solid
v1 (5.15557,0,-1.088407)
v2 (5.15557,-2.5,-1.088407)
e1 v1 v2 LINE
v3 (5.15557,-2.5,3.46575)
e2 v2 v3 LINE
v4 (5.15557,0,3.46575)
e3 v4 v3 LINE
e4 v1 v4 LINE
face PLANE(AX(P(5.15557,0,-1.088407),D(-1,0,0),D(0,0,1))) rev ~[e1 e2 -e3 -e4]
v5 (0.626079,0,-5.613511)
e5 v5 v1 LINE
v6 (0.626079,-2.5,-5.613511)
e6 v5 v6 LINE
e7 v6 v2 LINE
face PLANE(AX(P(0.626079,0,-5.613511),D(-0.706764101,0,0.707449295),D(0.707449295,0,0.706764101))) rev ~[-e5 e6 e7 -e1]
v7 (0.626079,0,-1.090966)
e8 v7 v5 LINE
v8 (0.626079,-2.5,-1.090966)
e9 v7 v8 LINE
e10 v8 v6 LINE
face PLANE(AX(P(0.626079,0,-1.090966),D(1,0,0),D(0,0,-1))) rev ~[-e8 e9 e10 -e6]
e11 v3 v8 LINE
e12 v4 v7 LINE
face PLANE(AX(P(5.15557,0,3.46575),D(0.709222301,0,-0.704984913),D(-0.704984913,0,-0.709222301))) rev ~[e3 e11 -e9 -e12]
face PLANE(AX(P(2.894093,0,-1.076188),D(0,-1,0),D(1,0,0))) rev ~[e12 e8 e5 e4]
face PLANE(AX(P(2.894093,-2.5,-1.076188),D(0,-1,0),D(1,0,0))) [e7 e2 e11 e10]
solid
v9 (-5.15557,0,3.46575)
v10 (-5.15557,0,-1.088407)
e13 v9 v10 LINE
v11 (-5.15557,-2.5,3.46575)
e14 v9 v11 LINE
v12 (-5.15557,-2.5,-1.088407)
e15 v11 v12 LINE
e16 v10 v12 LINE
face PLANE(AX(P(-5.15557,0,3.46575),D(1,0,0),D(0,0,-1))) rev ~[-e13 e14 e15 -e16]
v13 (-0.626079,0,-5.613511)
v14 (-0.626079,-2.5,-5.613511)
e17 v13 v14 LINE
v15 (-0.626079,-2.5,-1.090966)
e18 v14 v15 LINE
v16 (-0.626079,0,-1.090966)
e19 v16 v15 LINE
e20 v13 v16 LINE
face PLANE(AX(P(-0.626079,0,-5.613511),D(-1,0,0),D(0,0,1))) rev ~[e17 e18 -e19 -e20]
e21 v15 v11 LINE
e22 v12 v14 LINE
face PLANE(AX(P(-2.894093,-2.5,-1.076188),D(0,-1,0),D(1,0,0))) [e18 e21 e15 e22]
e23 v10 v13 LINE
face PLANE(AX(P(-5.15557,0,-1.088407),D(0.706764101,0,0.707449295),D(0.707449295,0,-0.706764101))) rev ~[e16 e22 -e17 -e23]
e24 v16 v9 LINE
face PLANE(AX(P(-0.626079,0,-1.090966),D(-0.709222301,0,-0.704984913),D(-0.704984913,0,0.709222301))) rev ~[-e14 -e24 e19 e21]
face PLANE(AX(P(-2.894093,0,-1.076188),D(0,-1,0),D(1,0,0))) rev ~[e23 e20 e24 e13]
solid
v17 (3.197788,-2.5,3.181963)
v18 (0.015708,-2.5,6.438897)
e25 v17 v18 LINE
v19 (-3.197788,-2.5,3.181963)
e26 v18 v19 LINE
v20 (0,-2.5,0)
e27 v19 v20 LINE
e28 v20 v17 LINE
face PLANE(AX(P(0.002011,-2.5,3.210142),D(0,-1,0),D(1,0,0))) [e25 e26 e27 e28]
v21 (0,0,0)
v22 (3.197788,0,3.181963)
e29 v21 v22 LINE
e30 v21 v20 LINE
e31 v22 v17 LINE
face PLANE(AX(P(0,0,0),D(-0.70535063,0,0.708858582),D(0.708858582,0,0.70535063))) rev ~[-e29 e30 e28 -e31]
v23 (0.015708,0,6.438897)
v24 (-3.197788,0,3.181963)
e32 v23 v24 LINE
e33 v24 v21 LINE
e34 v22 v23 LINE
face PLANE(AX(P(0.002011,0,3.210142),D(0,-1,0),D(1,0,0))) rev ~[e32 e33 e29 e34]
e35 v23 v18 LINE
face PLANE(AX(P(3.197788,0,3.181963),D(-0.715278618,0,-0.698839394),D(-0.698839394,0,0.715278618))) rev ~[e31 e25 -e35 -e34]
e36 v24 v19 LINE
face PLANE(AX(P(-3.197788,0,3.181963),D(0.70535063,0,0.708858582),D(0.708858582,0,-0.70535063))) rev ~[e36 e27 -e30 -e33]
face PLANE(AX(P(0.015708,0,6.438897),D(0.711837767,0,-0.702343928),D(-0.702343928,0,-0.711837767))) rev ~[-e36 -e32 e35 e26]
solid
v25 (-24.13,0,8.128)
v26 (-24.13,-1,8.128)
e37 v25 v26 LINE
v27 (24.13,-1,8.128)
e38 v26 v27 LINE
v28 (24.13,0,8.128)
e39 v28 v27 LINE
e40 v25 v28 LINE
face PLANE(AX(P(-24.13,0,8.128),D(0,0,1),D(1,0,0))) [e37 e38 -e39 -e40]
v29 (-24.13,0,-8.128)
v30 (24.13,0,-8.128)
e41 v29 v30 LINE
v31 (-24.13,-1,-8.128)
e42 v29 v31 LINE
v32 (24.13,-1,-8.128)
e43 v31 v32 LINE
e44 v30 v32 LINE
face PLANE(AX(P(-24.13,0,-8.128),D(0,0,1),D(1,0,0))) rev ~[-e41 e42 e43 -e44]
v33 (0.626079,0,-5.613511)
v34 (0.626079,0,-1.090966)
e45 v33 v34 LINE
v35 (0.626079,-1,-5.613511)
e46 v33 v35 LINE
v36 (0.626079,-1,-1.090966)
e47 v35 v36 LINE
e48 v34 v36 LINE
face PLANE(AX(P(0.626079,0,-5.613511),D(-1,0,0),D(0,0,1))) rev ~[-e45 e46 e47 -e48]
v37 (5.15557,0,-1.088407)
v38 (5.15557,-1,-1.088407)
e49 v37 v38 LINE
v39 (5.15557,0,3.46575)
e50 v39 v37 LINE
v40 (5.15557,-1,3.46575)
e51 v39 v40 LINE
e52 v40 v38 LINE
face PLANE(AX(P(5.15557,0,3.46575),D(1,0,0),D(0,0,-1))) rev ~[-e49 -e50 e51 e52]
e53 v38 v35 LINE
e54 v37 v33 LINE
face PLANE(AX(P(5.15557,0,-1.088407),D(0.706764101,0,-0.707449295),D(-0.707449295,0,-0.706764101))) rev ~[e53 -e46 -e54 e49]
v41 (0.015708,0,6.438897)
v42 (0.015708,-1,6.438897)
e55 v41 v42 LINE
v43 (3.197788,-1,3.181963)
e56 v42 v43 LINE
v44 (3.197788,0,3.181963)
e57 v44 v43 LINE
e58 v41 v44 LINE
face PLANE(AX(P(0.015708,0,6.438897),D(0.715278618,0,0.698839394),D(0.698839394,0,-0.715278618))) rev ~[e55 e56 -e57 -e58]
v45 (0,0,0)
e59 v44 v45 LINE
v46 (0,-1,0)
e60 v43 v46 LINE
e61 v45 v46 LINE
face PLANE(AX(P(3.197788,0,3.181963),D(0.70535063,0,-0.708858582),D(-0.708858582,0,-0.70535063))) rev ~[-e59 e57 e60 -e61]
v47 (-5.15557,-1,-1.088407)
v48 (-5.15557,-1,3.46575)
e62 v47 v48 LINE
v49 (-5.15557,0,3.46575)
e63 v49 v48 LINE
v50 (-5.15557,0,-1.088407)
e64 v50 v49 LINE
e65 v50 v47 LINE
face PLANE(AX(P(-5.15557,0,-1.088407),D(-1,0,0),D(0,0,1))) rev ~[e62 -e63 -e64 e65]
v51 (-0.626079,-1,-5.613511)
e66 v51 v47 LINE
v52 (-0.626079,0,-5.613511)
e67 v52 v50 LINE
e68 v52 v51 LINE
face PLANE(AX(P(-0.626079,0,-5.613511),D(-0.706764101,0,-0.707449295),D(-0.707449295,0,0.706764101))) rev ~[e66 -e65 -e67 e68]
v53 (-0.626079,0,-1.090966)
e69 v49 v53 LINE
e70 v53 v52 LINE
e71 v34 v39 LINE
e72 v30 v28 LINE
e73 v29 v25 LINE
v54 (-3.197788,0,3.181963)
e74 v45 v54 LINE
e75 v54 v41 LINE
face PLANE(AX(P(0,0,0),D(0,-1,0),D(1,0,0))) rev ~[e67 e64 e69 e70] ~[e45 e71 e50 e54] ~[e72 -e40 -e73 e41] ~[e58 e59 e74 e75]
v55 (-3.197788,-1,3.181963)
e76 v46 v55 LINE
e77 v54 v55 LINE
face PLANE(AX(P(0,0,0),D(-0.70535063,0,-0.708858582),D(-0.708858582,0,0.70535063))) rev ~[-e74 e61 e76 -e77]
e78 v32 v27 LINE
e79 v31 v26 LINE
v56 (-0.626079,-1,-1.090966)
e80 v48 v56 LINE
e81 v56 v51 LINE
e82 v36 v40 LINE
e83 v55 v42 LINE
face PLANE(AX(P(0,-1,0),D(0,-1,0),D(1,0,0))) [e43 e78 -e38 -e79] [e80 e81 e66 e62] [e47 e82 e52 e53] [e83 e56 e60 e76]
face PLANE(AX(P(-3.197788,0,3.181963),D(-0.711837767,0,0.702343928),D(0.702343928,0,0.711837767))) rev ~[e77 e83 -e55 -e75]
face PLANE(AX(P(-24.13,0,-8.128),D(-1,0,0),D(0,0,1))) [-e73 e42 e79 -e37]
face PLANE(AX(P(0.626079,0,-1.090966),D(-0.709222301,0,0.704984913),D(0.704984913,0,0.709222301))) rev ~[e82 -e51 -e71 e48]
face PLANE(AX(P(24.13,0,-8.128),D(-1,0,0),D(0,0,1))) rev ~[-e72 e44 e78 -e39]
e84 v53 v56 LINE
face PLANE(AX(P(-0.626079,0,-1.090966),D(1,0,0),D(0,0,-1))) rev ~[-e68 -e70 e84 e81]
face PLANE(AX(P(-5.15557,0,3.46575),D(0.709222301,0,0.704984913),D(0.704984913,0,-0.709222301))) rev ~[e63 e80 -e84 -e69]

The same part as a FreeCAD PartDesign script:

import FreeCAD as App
import Part
import Sketcher

V = App.Vector
Q = App.Units.Quantity

doc = App.newDocument("Part")
body = doc.addObject("PartDesign::Body", "Body")
body.AllowCompound = True

# Sketch on XZ plane
sketch1 = body.newObject("Sketcher::SketchObject", "Sketch")
sketch1.AttachmentSupport = (doc.getObject("XZ_Plane"), [""])
sketch1.MapMode = "FlatFace"
sketch1.addGeometry([
    Part.LineSegment(V(-0.6, -1.1, 0), V(-5.2, 3.5, 0)),  # 0
    Part.LineSegment(V(-5.2, 3.5, 0), V(-5.2, -1.1, 0)),  # 1
    Part.LineSegment(V(-5.2, -1.1, 0), V(-0.6, -5.6, 0)),  # 2
    Part.LineSegment(V(-0.6, -5.6, 0), V(-0.6, -1.1, 0)),  # 3
    Part.LineSegment(V(3.2, 3.2, 0), V(0, 6.4, 0)),  # 4
    Part.LineSegment(V(0, 6.4, 0), V(-3.2, 3.2, 0)),  # 5
    Part.LineSegment(V(-3.2, 3.2, 0), V(0, 0, 0)),  # 6
    Part.LineSegment(V(0, 0, 0), V(3.2, 3.2, 0)),  # 7
    Part.LineSegment(V(5.2, 3.5, 0), V(0.6, -1.1, 0)),  # 8
    Part.LineSegment(V(0.6, -1.1, 0), V(0.6, -5.6, 0)),  # 9
    Part.LineSegment(V(0.6, -5.6, 0), V(5.2, -1.1, 0)),  # 10
    Part.LineSegment(V(5.2, -1.1, 0), V(5.2, 3.5, 0)),  # 11
], False)
sketch1.addConstraint([
    Sketcher.Constraint("Coincident", 0, 2, 1, 1),
    Sketcher.Constraint("Coincident", 1, 2, 2, 1),
    Sketcher.Constraint("Coincident", 2, 2, 3, 1),
    Sketcher.Constraint("Coincident", 3, 2, 0, 1),
    Sketcher.Constraint("Coincident", 4, 2, 5, 1),
    Sketcher.Constraint("Coincident", 5, 2, 6, 1),
    Sketcher.Constraint("Coincident", 6, 2, 7, 1),
    Sketcher.Constraint("Coincident", 7, 2, 4, 1),
    Sketcher.Constraint("Coincident", 8, 2, 9, 1),
    Sketcher.Constraint("Coincident", 9, 2, 10, 1),
    Sketcher.Constraint("Coincident", 10, 2, 11, 1),
    Sketcher.Constraint("Coincident", 11, 2, 8, 1),
    Sketcher.Constraint("Vertical", 1),
    Sketcher.Constraint("Vertical", 3),
    Sketcher.Constraint("Vertical", 9),
    Sketcher.Constraint("Vertical", 11),
    Sketcher.Constraint("Coincident", 6, 2, -1, 1),
    Sketcher.Constraint("Symmetric", 5, 2, 7, 2, -2),
    Sketcher.Constraint("Symmetric", 3, 2, 8, 2, -2),
    Sketcher.Constraint("Symmetric", 1, 2, 10, 2, -2),
    Sketcher.Constraint("Horizontal", 2, 2, 9, 2),
    Sketcher.Constraint("Horizontal", 0, 2, 11, 2),
    Sketcher.Constraint("Distance", 4, Q("4.553378 mm")),
    Sketcher.Constraint("Distance", 5, Q("4.575388 mm")),
    Sketcher.Constraint("Distance", 6, Q("4.511179 mm")),
    Sketcher.Constraint("DistanceY", 1, 2, 1, 1, Q("4.554157 mm")),
    Sketcher.Constraint("DistanceY", 3, 1, 3, 2, Q("4.522545 mm")),
    Sketcher.Constraint("DistanceX", 0, 2, -1, 1, Q("5.15557 mm")),
    Sketcher.Constraint("DistanceY", -1, 1, 0, 2, Q("3.46575 mm")),
    Sketcher.Constraint("DistanceX", 2, 2, -1, 1, Q("0.626079 mm")),
    Sketcher.Constraint("DistanceY", 2, 2, -1, 1, Q("5.613511 mm")),
    Sketcher.Constraint("DistanceX", 5, 2, -1, 1, Q("3.197788 mm")),
])
pad1 = body.newObject("PartDesign::Pad", "Pad")
pad1.Profile = sketch1
pad1.Length = 2.5
body2 = doc.addObject("PartDesign::Body", "Body001")

# Sketch on XZ plane
sketch2 = body2.newObject("Sketcher::SketchObject", "Sketch001")
sketch2.AttachmentSupport = (doc.getObject("XZ_Plane001"), [""])
sketch2.MapMode = "FlatFace"
sketch2.addGeometry([
    Part.LineSegment(V(-24.1, 8.1, 0), V(-24.1, -8.1, 0)),  # 0
    Part.LineSegment(V(-24.1, -8.1, 0), V(24.1, -8.1, 0)),  # 1
    Part.LineSegment(V(24.1, -8.1, 0), V(24.1, 8.1, 0)),  # 2
    Part.LineSegment(V(24.1, 8.1, 0), V(-24.1, 8.1, 0)),  # 3
    Part.LineSegment(V(-0.6, -5.6, 0), V(-5.2, -1.1, 0)),  # 4
    Part.LineSegment(V(-5.2, -1.1, 0), V(-5.2, 3.5, 0)),  # 5
    Part.LineSegment(V(-5.2, 3.5, 0), V(-0.6, -1.1, 0)),  # 6
    Part.LineSegment(V(-0.6, -1.1, 0), V(-0.6, -5.6, 0)),  # 7
    Part.LineSegment(V(5.2, -1.1, 0), V(0.6, -5.6, 0)),  # 8
    Part.LineSegment(V(0.6, -5.6, 0), V(0.6, -1.1, 0)),  # 9
    Part.LineSegment(V(0.6, -1.1, 0), V(5.2, 3.5, 0)),  # 10
    Part.LineSegment(V(5.2, 3.5, 0), V(5.2, -1.1, 0)),  # 11
    Part.LineSegment(V(0, 0, 0), V(-3.2, 3.2, 0)),  # 12
    Part.LineSegment(V(-3.2, 3.2, 0), V(0, 6.4, 0)),  # 13
    Part.LineSegment(V(0, 6.4, 0), V(3.2, 3.2, 0)),  # 14
    Part.LineSegment(V(3.2, 3.2, 0), V(0, 0, 0)),  # 15
], False)
sketch2.addConstraint([
    Sketcher.Constraint("Coincident", 0, 2, 1, 1),
    Sketcher.Constraint("Coincident", 1, 2, 2, 1),
    Sketcher.Constraint("Coincident", 2, 2, 3, 1),
    Sketcher.Constraint("Coincident", 3, 2, 0, 1),
    Sketcher.Constraint("Coincident", 4, 2, 5, 1),
    Sketcher.Constraint("Coincident", 5, 2, 6, 1),
    Sketcher.Constraint("Coincident", 6, 2, 7, 1),
    Sketcher.Constraint("Coincident", 7, 2, 4, 1),
    Sketcher.Constraint("Coincident", 8, 2, 9, 1),
    Sketcher.Constraint("Coincident", 9, 2, 10, 1),
    Sketcher.Constraint("Coincident", 10, 2, 11, 1),
    Sketcher.Constraint("Coincident", 11, 2, 8, 1),
    Sketcher.Constraint("Coincident", 12, 2, 13, 1),
    Sketcher.Constraint("Coincident", 13, 2, 14, 1),
    Sketcher.Constraint("Coincident", 14, 2, 15, 1),
    Sketcher.Constraint("Coincident", 15, 2, 12, 1),
    Sketcher.Constraint("Vertical", 0),
    Sketcher.Constraint("Horizontal", 1),
    Sketcher.Constraint("Vertical", 2),
    Sketcher.Constraint("Horizontal", 3),
    Sketcher.Constraint("Vertical", 5),
    Sketcher.Constraint("Vertical", 7),
    Sketcher.Constraint("Vertical", 9),
    Sketcher.Constraint("Vertical", 11),
    Sketcher.Constraint("Coincident", 15, 2, -1, 1),
    Sketcher.Constraint("Symmetric", 0, 2, 2, 2, -1, 1),
    Sketcher.Constraint("Symmetric", 7, 2, 8, 2, -2),
    Sketcher.Constraint("Symmetric", 5, 2, 10, 2, -2),
    Sketcher.Constraint("Symmetric", 12, 2, 14, 2, -2),
    Sketcher.Constraint("Horizontal", 6, 2, 9, 2),
    Sketcher.Constraint("Horizontal", 4, 2, 11, 2),
    Sketcher.Constraint("DistanceX", 1, 1, 1, 2, Q("48.26 mm")),
    Sketcher.Constraint("DistanceY", 0, 2, 0, 1, Q("16.256 mm")),
    Sketcher.Constraint("Distance", 12, Q("4.511179 mm")),
    Sketcher.Constraint("Distance", 13, Q("4.575388 mm")),
    Sketcher.Constraint("Distance", 14, Q("4.553378 mm")),
    Sketcher.Constraint("DistanceY", 5, 1, 5, 2, Q("4.554157 mm")),
    Sketcher.Constraint("DistanceY", 7, 2, 7, 1, Q("4.522545 mm")),
    Sketcher.Constraint("DistanceX", 4, 2, -1, 1, Q("5.15557 mm")),
    Sketcher.Constraint("DistanceY", -1, 1, 5, 2, Q("3.46575 mm")),
    Sketcher.Constraint("DistanceX", 6, 2, -1, 1, Q("0.626079 mm")),
    Sketcher.Constraint("DistanceY", 7, 2, -1, 1, Q("5.613511 mm")),
    Sketcher.Constraint("DistanceX", 12, 2, -1, 1, Q("3.197788 mm")),
])
pad2 = body2.newObject("PartDesign::Pad", "Pad001")
pad2.Profile = sketch2
pad2.Length = 1

doc.recompute()
